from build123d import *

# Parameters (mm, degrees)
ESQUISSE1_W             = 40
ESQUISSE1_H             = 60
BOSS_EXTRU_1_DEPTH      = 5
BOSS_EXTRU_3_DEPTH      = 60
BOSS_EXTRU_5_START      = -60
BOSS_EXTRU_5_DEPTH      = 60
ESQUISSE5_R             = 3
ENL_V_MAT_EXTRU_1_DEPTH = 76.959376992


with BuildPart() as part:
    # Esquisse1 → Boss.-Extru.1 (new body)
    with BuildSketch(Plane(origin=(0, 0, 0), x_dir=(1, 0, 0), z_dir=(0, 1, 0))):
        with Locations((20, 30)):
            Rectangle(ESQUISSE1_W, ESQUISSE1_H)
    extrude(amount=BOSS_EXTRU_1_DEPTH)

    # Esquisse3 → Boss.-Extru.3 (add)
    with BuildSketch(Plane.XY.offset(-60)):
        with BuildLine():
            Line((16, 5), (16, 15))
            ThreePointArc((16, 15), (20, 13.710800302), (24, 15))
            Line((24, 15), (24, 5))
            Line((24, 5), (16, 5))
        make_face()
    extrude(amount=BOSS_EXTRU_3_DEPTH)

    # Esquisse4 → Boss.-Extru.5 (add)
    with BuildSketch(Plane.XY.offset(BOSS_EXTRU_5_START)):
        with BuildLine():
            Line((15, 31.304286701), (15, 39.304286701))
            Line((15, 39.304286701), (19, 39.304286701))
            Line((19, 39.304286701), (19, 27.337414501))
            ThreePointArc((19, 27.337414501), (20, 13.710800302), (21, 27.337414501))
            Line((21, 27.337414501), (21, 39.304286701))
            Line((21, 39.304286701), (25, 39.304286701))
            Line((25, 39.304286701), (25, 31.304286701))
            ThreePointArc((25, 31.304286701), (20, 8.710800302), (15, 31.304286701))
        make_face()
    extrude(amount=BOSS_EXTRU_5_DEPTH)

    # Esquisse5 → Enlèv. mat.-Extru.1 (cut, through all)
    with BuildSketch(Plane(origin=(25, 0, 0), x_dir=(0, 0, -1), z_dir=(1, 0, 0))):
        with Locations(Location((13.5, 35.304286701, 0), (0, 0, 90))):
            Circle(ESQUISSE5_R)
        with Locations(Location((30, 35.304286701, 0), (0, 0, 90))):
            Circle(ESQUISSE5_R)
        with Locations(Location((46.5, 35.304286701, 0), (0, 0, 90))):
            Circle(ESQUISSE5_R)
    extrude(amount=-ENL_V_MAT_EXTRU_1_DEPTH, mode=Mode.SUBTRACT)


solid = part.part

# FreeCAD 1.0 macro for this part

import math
import FreeCAD as App
import Part
import Sketcher
from FreeCAD import Vector

doc = App.newDocument("Part")
body = doc.addObject("PartDesign::Body", "Body")

# Sketch on XZ plane
sketch1 = body.newObject("Sketcher::SketchObject", "Sketch")
sketch1.AttachmentSupport = (doc.getObject("XZ_Plane"), [""])
sketch1.MapMode = "FlatFace"
sketch1.addGeometry([
    Part.LineSegment(Vector(0, -60, 0), Vector(0, 0, 0)),
    Part.LineSegment(Vector(0, 0, 0), Vector(40, 0, 0)),
    Part.LineSegment(Vector(40, 0, 0), Vector(40, -60, 0)),
    Part.LineSegment(Vector(40, -60, 0), Vector(0, -60, 0)),
], False)
sketch1.addConstraint([
    Sketcher.Constraint("Coincident", 0, 2, 1, 1),
    Sketcher.Constraint("Coincident", 1, 2, 2, 1),
    Sketcher.Constraint("Coincident", 2, 2, 3, 1),
    Sketcher.Constraint("Coincident", 3, 2, 0, 1),
    Sketcher.Constraint("Vertical", 0),
    Sketcher.Constraint("Horizontal", 1),
    Sketcher.Constraint("Vertical", 2),
    Sketcher.Constraint("Horizontal", 3),
    Sketcher.Constraint("Coincident", 0, 2, -1, 1),
    Sketcher.Constraint("DistanceX", 1, 1, 1, 2, 40.0),
    Sketcher.Constraint("DistanceY", 0, 1, 0, 2, 60.0),
])
pad1 = body.newObject("PartDesign::Pad", "Pad")
pad1.Profile = sketch1
pad1.Length = 5
pad1.Reversed = True

# Sketch on XY plane
sketch2 = body.newObject("Sketcher::SketchObject", "Sketch001")
sketch2.AttachmentSupport = (doc.getObject("XY_Plane"), [""])
sketch2.MapMode = "FlatFace"
sketch2.AttachmentOffset = App.Placement(Vector(0, 0, -60), App.Rotation())
sketch2.addGeometry([
    Part.LineSegment(Vector(16, 15, 0), Vector(16, 5, 0)),
    Part.LineSegment(Vector(16, 5, 0), Vector(24, 5, 0)),
    Part.LineSegment(Vector(24, 5, 0), Vector(24, 15, 0)),
    Part.ArcOfCircle(Part.Circle(Vector(20, 21, 0), Vector(0, 0, 1), 7), math.radians(-126), math.radians(-54)),
], False)
sketch2.addConstraint([
    Sketcher.Constraint("Coincident", 0, 2, 1, 1),
    Sketcher.Constraint("Coincident", 1, 2, 2, 1),
    Sketcher.Constraint("Coincident", 2, 2, 3, 2),
    Sketcher.Constraint("Coincident", 3, 1, 0, 1),
    Sketcher.Constraint("Vertical", 0),
    Sketcher.Constraint("Horizontal", 1),
    Sketcher.Constraint("Vertical", 2),
    Sketcher.Constraint("Horizontal", 2, 2, 3, 1),
    Sketcher.Constraint("DistanceX", 1, 1, 1, 2, 8.0),
    Sketcher.Constraint("DistanceY", 0, 2, 0, 1, 10.0),
    Sketcher.Constraint("Radius", 3, 6.85),
    Sketcher.Constraint("DistanceX", -1, 1, 3, 3, 20.0),
    Sketcher.Constraint("DistanceY", -1, 1, 0, 2, 5.0),
])
pad2 = body.newObject("PartDesign::Pad", "Pad001")
pad2.Profile = sketch2
pad2.Length = 60

# Sketch on XY plane
sketch3 = body.newObject("Sketcher::SketchObject", "Sketch002")
sketch3.AttachmentSupport = (doc.getObject("XY_Plane"), [""])
sketch3.MapMode = "FlatFace"
sketch3.AttachmentOffset = App.Placement(Vector(0, 0, -60), App.Rotation())
sketch3.addGeometry([
    Part.LineSegment(Vector(15, 39.3, 0), Vector(15, 31.3, 0)),  # 0
    Part.ArcOfCircle(Part.Circle(Vector(20, 20.6, 0), Vector(0, 0, 1), 11.8), math.radians(115), math.radians(425)),  # 1
    Part.LineSegment(Vector(25, 31.3, 0), Vector(25, 39.3, 0)),  # 2
    Part.LineSegment(Vector(25, 39.3, 0), Vector(21, 39.3, 0)),  # 3
    Part.LineSegment(Vector(21, 39.3, 0), Vector(21, 27.3, 0)),  # 4
    Part.ArcOfCircle(Part.Circle(Vector(20, 20.6, 0), Vector(0, 0, 1), 6.8), math.radians(98), math.radians(442)),  # 5
    Part.LineSegment(Vector(19, 27.3, 0), Vector(19, 39.3, 0)),  # 6
    Part.LineSegment(Vector(19, 39.3, 0), Vector(15, 39.3, 0)),  # 7
], False)
sketch3.addConstraint([
    Sketcher.Constraint("Coincident", 0, 2, 1, 1),
    Sketcher.Constraint("Coincident", 1, 2, 2, 1),
    Sketcher.Constraint("Coincident", 2, 2, 3, 1),
    Sketcher.Constraint("Coincident", 3, 2, 4, 1),
    Sketcher.Constraint("Coincident", 4, 2, 5, 2),
    Sketcher.Constraint("Coincident", 5, 1, 6, 1),
    Sketcher.Constraint("Coincident", 6, 2, 7, 1),
    Sketcher.Constraint("Coincident", 7, 2, 0, 1),
    Sketcher.Constraint("Vertical", 0),
    Sketcher.Constraint("Vertical", 2),
    Sketcher.Constraint("Horizontal", 3),
    Sketcher.Constraint("Vertical", 4),
    Sketcher.Constraint("Vertical", 6),
    Sketcher.Constraint("Horizontal", 7),
    Sketcher.Constraint("Coincident", 5, 3, 1, 3),
    Sketcher.Constraint("Horizontal", 0, 2, 1, 2),
    Sketcher.Constraint("Horizontal", 4, 2, 5, 1),
    Sketcher.Constraint("Horizontal", 3, 2, 6, 2),
    Sketcher.Constraint("DistanceX", 3, 2, 3, 1, 4.0),
    Sketcher.Constraint("DistanceY", 0, 2, 0, 1, 8.0),
    Sketcher.Constraint("Radius", 1, 11.85),
    Sketcher.Constraint("Radius", 5, 6.85),
    Sketcher.Constraint("DistanceX", -1, 1, 1, 3, 20.0),
    Sketcher.Constraint("DistanceX", -1, 1, 0, 2, 15.0),
    Sketcher.Constraint("DistanceY", -1, 1, 1, 3, 20.5608),
])
pad3 = body.newObject("PartDesign::Pad", "Pad002")
pad3.Profile = sketch3
pad3.Length = 60

# Sketch on YZ plane
sketch4 = body.newObject("Sketcher::SketchObject", "Sketch003")
sketch4.AttachmentSupport = (doc.getObject("YZ_Plane"), [""])
sketch4.MapMode = "FlatFace"
sketch4.AttachmentOffset = App.Placement(Vector(0, 0, 25), App.Rotation())
sketch4.addGeometry([
    Part.Circle(Vector(35.3, -13.5, 0), Vector(0, 0, 1), 3),
    Part.Circle(Vector(35.3, -30, 0), Vector(0, 0, 1), 3),
    Part.Circle(Vector(35.3, -46.5, 0), Vector(0, 0, 1), 3),
], False)
sketch4.addConstraint([
    Sketcher.Constraint("Equal", 0, 1),
    Sketcher.Constraint("Equal", 1, 2),
    Sketcher.Constraint("Vertical", 0, 3, 1, 3),
    Sketcher.Constraint("Vertical", 1, 3, 2, 3),
    Sketcher.Constraint("Diameter", 0, 6.0),
    Sketcher.Constraint("DistanceY", 1, 3, -1, 1, 30.0),
    Sketcher.Constraint("DistanceY", 2, 3, 0, 3, 33.0),
    Sketcher.Constraint("DistanceY", 0, 3, -1, 1, 13.5),
    Sketcher.Constraint("DistanceX", -1, 1, 0, 3, 35.304287),
])
pocket1 = body.newObject("PartDesign::Pocket", "Pocket")
pocket1.Profile = sketch4
pocket1.Type = "ThroughAll"

doc.recompute()
